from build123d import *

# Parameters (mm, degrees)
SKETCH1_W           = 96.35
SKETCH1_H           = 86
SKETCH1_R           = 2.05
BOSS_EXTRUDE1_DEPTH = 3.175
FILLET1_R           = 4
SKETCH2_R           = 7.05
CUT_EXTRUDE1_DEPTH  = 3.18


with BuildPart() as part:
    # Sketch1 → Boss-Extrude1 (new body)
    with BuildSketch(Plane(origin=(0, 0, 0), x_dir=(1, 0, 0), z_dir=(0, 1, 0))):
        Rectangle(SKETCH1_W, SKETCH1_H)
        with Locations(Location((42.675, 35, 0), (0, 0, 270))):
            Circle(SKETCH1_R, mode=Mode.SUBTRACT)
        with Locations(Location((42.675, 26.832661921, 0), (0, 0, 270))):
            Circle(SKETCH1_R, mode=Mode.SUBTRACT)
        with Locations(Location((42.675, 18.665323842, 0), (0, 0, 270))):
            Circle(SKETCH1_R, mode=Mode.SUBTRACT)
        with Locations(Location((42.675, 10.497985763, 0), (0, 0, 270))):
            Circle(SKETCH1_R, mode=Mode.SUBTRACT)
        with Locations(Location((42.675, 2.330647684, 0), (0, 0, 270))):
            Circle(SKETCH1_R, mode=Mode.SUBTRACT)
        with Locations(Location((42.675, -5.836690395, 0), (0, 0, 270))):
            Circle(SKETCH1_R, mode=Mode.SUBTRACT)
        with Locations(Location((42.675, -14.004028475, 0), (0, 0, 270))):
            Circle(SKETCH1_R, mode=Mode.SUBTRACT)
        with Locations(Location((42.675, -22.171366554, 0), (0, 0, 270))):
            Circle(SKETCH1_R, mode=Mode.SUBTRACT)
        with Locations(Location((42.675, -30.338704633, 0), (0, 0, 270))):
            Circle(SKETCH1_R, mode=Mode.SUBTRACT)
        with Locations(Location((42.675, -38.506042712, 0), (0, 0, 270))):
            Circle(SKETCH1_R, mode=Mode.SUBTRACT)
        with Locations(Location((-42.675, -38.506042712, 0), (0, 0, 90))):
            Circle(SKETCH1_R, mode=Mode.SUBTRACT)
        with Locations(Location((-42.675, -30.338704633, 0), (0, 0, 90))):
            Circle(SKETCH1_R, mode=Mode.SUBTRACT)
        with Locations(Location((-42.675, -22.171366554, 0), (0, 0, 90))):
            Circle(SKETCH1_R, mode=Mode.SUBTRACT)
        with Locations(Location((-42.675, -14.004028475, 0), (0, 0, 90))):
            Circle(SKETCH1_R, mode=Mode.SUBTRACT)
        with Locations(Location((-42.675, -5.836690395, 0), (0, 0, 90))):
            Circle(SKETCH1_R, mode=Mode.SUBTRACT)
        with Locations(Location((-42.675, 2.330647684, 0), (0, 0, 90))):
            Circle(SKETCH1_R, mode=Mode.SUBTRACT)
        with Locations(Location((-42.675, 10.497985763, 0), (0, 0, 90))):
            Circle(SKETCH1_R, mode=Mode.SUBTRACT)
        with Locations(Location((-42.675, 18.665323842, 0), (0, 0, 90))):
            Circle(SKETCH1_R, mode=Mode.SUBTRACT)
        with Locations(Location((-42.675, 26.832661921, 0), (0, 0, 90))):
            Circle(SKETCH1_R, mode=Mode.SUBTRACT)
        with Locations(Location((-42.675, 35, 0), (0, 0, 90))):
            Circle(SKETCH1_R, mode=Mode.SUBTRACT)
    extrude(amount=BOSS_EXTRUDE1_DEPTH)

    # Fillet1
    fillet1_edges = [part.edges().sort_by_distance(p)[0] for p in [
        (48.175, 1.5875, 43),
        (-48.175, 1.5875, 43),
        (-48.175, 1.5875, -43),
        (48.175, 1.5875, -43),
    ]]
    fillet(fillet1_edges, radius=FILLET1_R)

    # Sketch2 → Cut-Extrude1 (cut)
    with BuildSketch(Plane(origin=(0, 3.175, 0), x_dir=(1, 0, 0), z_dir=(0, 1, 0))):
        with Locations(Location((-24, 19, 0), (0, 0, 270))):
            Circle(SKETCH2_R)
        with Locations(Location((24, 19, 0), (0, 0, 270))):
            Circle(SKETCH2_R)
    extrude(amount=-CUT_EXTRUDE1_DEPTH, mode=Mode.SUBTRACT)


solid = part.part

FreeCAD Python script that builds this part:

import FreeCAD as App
import Part
import Sketcher

V = App.Vector


def edges_at(feature, points):
    """Names of the edges that pass closest to the given points."""
    edges = feature.Shape.Edges
    near = lambda p: min(range(len(edges)), key=lambda i: edges[i].distToShape(Part.Vertex(*p))[0])
    return sorted({f"Edge{near(p) + 1}" for p in points})

doc = App.newDocument("Part")
body = doc.addObject("PartDesign::Body", "Body")

sketch1 = doc.addObject("Sketcher::SketchObject", "Sketch")
body.addObject(sketch1)
sketch1.AttachmentSupport = (doc.XZ_Plane, [""])
sketch1.MapMode = "FlatFace"
sketch1.addGeometry([
    Part.LineSegment(V(-48.2, -43, 0), V(-48.2, 43, 0)),
    Part.LineSegment(V(-48.2, 43, 0), V(48.2, 43, 0)),
    Part.LineSegment(V(48.2, 43, 0), V(48.2, -43, 0)),
    Part.LineSegment(V(48.2, -43, 0), V(-48.2, -43, 0)),
    Part.Circle(V(-42.7, 38.5, 0), V(0, 0, 1), 2),
    Part.Circle(V(-42.7, 30.3, 0), V(0, 0, 1), 2),
    Part.Circle(V(-42.7, 22.2, 0), V(0, 0, 1), 2),
    Part.Circle(V(-42.7, 14, 0), V(0, 0, 1), 2),
    Part.Circle(V(-42.7, 5.8, 0), V(0, 0, 1), 2),
    Part.Circle(V(42.7, 38.5, 0), V(0, 0, 1), 2),
    Part.Circle(V(42.7, 30.3, 0), V(0, 0, 1), 2),
    Part.Circle(V(42.7, 22.2, 0), V(0, 0, 1), 2),
    Part.Circle(V(42.7, 14, 0), V(0, 0, 1), 2),
    Part.Circle(V(42.7, 5.8, 0), V(0, 0, 1), 2),
    Part.Circle(V(-42.7, -2.3, 0), V(0, 0, 1), 2),
    Part.Circle(V(-42.7, -10.5, 0), V(0, 0, 1), 2),
    Part.Circle(V(-42.7, -18.7, 0), V(0, 0, 1), 2),
    Part.Circle(V(-42.7, -26.8, 0), V(0, 0, 1), 2),
    Part.Circle(V(-42.7, -35, 0), V(0, 0, 1), 2),
    Part.Circle(V(42.7, -2.3, 0), V(0, 0, 1), 2),
    Part.Circle(V(42.7, -10.5, 0), V(0, 0, 1), 2),
    Part.Circle(V(42.7, -18.7, 0), V(0, 0, 1), 2),
    Part.Circle(V(42.7, -26.8, 0), V(0, 0, 1), 2),
    Part.Circle(V(42.7, -35, 0), V(0, 0, 1), 2),
], False)
sketch1.addConstraint([
    Sketcher.Constraint("Coincident", 0, 2, 1, 1),
    Sketcher.Constraint("Coincident", 1, 2, 2, 1),
    Sketcher.Constraint("Coincident", 2, 2, 3, 1),
    Sketcher.Constraint("Coincident", 3, 2, 0, 1),
    Sketcher.Constraint("Vertical", 0),
    Sketcher.Constraint("Horizontal", 1),
    Sketcher.Constraint("Vertical", 2),
    Sketcher.Constraint("Horizontal", 3),
    Sketcher.Constraint("Equal", 4, 5),
    Sketcher.Constraint("Equal", 5, 6),
    Sketcher.Constraint("Equal", 6, 7),
    Sketcher.Constraint("Equal", 7, 8),
    Sketcher.Constraint("Equal", 8, 9),
    Sketcher.Constraint("Equal", 9, 10),
    Sketcher.Constraint("Equal", 10, 11),
    Sketcher.Constraint("Equal", 11, 12),
    Sketcher.Constraint("Equal", 12, 13),
    Sketcher.Constraint("Equal", 13, 14),
    Sketcher.Constraint("Equal", 14, 15),
    Sketcher.Constraint("Equal", 15, 16),
    Sketcher.Constraint("Equal", 16, 17),
    Sketcher.Constraint("Equal", 17, 18),
    Sketcher.Constraint("Equal", 18, 19),
    Sketcher.Constraint("Equal", 19, 20),
    Sketcher.Constraint("Equal", 20, 21),
    Sketcher.Constraint("Equal", 21, 22),
    Sketcher.Constraint("Equal", 22, 23),
    Sketcher.Constraint("Symmetric", 0, 2, 2, 2, -1, 1),
    Sketcher.Constraint("Symmetric", 4, 3, 9, 3, -2),
    Sketcher.Constraint("Symmetric", 5, 3, 10, 3, -2),
    Sketcher.Constraint("Symmetric", 6, 3, 11, 3, -2),
    Sketcher.Constraint("Symmetric", 7, 3, 12, 3, -2),
    Sketcher.Constraint("Symmetric", 8, 3, 13, 3, -2),
    Sketcher.Constraint("Symmetric", 14, 3, 19, 3, -2),
    Sketcher.Constraint("Symmetric", 15, 3, 20, 3, -2),
    Sketcher.Constraint("Symmetric", 16, 3, 21, 3, -2),
    Sketcher.Constraint("Symmetric", 17, 3, 22, 3, -2),
    Sketcher.Constraint("Symmetric", 18, 3, 23, 3, -2),
    Sketcher.Constraint("Vertical", 4, 3, 5, 3),
    Sketcher.Constraint("Vertical", 5, 3, 6, 3),
    Sketcher.Constraint("Vertical", 6, 3, 7, 3),
    Sketcher.Constraint("Vertical", 7, 3, 8, 3),
    Sketcher.Constraint("Vertical", 8, 3, 14, 3),
    Sketcher.Constraint("Vertical", 14, 3, 15, 3),
    Sketcher.Constraint("Vertical", 15, 3, 16, 3),
    Sketcher.Constraint("Vertical", 16, 3, 17, 3),
    Sketcher.Constraint("Vertical", 17, 3, 18, 3),
    Sketcher.Constraint("Diameter", 4, 4.1),
    Sketcher.Constraint("DistanceY", 0, 1, 0, 2, 86.0),
    Sketcher.Constraint("DistanceY", 18, 3, -1, 1, 35.0),
    Sketcher.Constraint("DistanceX", 1, 1, 1, 2, 96.35),
    Sketcher.Constraint("DistanceX", 0, 2, 4, 3, 5.5),
    Sketcher.Constraint("DistanceY", -1, 1, 7, 3, 14.004028),
    Sketcher.Constraint("DistanceY", -1, 1, 8, 3, 5.83669),
    Sketcher.Constraint("DistanceY", 17, 3, -1, 1, 26.832662),
    Sketcher.Constraint("DistanceY", 5, 3, 4, 3, 8.167338),
    Sketcher.Constraint("DistanceY", 6, 3, 5, 3, 8.167338),
    Sketcher.Constraint("DistanceY", 7, 3, 6, 3, 8.167338),
    Sketcher.Constraint("DistanceY", 14, 3, 8, 3, 8.167338),
    Sketcher.Constraint("DistanceY", 15, 3, 14, 3, 8.167338),
    Sketcher.Constraint("DistanceY", 16, 3, 15, 3, 8.167338),
])
pad1 = doc.addObject("PartDesign::Pad", "Pad")
body.addObject(pad1)
pad1.Profile = sketch1
pad1.Length = 3.175
pad1.Reversed = True
doc.recompute()

fillet = doc.addObject("PartDesign::Fillet", "Fillet")
body.addObject(fillet)
fillet.Base = (pad1, edges_at(pad1, [
    (48.175, 1.587, 43),
    (-48.175, 1.587, 43),
    (-48.175, 1.587, -43),
    (48.175, 1.587, -43),
]))
fillet.Radius = 4

sketch2 = doc.addObject("Sketcher::SketchObject", "Sketch001")
body.addObject(sketch2)
sketch2.AttachmentSupport = (doc.XZ_Plane, [""])
sketch2.MapMode = "FlatFace"
sketch2.AttachmentOffset = App.Placement(V(0, 0, -3.175), App.Rotation())
sketch2.addGeometry([
    Part.Circle(V(-24, -19, 0), V(0, 0, 1), 7),
    Part.Circle(V(24, -19, 0), V(0, 0, 1), 7),
], False)
sketch2.addConstraint([
    Sketcher.Constraint("Equal", 0, 1),
    Sketcher.Constraint("Symmetric", 0, 3, 1, 3, -2),
    Sketcher.Constraint("Diameter", 0, 14.1),
    Sketcher.Constraint("DistanceX", 0, 3, -1, 1, 24.0),
    Sketcher.Constraint("DistanceY", 0, 3, -1, 1, 19.0),
])
pocket1 = doc.addObject("PartDesign::Pocket", "Pocket")
body.addObject(pocket1)
pocket1.Profile = sketch2
pocket1.Length = 3.18
pocket1.Reversed = True

doc.recompute()
